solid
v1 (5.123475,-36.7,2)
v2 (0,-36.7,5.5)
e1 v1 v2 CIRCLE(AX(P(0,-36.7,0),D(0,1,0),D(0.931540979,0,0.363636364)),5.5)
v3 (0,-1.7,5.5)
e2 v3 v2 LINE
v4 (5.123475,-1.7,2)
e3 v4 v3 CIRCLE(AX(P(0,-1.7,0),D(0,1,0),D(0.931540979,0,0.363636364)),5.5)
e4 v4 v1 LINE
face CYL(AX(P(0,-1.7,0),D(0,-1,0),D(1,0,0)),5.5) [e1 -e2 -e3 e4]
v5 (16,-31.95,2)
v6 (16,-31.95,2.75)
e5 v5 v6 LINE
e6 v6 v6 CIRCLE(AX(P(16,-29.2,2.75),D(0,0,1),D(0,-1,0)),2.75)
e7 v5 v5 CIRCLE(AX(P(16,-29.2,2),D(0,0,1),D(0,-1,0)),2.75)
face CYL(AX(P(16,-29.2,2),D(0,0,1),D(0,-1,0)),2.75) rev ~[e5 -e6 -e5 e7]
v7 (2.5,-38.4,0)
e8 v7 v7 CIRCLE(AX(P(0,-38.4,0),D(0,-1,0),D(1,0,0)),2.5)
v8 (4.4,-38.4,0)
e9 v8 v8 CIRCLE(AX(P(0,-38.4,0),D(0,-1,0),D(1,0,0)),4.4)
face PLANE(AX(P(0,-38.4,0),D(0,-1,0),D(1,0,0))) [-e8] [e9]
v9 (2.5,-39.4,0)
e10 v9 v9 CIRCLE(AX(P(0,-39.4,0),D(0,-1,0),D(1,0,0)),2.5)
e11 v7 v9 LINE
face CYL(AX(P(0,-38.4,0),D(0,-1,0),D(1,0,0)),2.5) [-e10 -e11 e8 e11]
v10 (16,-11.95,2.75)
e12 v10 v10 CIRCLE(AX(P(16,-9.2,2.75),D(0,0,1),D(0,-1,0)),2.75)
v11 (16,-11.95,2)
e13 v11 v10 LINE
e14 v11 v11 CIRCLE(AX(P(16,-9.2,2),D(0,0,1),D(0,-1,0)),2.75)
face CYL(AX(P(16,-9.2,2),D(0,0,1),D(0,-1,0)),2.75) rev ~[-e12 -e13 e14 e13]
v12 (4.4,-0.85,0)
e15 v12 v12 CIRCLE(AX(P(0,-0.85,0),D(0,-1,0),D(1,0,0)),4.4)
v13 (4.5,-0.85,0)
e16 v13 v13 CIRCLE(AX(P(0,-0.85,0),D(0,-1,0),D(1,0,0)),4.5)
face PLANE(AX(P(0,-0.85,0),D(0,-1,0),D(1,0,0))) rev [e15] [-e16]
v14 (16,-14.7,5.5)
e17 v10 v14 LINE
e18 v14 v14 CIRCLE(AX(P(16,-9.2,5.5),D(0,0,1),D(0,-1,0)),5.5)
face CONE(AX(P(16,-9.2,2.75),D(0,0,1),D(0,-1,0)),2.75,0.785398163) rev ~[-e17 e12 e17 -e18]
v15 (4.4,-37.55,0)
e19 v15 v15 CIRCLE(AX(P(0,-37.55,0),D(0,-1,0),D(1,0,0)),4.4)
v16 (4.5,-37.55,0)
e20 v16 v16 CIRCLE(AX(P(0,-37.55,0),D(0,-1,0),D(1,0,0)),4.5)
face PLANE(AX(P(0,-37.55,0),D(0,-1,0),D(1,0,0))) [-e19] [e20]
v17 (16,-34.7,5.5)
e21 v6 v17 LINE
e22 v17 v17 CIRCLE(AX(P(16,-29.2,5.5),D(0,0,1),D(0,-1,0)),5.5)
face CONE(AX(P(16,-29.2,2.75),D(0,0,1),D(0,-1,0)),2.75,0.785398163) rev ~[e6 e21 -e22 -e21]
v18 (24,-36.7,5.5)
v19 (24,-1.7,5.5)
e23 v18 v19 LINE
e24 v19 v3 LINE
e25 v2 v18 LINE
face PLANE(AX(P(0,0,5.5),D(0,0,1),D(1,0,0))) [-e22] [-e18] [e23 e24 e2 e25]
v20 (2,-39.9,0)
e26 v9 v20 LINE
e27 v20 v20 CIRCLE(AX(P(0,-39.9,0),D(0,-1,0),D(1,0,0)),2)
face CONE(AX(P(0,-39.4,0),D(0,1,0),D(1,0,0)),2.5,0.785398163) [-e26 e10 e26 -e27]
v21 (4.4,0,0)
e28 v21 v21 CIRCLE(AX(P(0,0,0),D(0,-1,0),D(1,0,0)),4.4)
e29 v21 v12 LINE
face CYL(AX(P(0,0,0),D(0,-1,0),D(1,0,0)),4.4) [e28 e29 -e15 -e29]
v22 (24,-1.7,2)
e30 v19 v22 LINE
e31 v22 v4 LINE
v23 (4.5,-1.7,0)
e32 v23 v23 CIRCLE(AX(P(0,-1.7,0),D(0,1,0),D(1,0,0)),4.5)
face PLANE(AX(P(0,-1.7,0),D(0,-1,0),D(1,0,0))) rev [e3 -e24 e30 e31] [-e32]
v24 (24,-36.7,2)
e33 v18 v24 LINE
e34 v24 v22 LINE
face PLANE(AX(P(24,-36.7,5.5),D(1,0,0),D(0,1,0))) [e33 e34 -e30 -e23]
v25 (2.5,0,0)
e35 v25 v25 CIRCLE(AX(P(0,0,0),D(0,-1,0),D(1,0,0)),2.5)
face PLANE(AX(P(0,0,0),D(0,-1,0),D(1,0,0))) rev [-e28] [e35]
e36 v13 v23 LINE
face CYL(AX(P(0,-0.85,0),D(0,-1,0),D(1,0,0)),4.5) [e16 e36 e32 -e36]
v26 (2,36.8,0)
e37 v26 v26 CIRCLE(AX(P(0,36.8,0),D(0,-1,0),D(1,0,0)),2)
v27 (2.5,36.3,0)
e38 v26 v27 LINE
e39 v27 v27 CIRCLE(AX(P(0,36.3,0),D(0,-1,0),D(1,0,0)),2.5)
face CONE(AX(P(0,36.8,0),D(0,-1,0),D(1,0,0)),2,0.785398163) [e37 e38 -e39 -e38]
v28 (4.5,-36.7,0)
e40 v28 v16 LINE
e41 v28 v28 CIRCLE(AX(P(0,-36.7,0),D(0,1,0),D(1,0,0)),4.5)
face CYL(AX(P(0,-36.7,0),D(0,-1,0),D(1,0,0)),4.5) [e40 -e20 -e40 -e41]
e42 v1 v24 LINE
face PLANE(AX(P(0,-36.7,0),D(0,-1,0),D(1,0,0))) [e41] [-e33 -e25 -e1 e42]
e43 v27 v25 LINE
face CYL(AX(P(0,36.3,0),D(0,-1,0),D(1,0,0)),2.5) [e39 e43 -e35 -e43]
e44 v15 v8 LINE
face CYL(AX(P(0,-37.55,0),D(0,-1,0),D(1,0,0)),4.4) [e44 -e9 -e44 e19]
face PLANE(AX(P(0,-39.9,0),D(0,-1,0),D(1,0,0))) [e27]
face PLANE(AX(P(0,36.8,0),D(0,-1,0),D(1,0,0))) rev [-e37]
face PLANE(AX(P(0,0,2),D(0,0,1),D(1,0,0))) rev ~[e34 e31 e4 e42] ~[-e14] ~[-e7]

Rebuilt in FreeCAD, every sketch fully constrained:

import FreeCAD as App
import Part
import Sketcher

V = App.Vector
Q = App.Units.Quantity

doc = App.newDocument("Part")
params = doc.addObject("Spreadsheet::Sheet", "Params")
for row, (alias, value) in enumerate([
    ("sketch1_width", "2 mm"),
    ("sketch1_width2", "1 mm"),
    ("sketch1_height", "35 mm"),
    ("sketch1_width3", "1.9 mm"),
    ("sketch1_width4", "0.1 mm"),
    ("revolution_angle", "360 deg"),
    ("sketch2_width", "24 mm"),
    ("sketch2_height", "35 mm"),
    ("pad1_length", "3.5 mm"),
    ("sketch3_width", "5.5 mm"),
    ("sketch3_height", "3.5 mm"),
    ("sketch3_width2", "2.75 mm"),
    ("groove_angle", "360 deg"),
    ("sketch4_width", "5.5 mm"),
    ("sketch4_height", "3.5 mm"),
    ("sketch4_width2", "2.75 mm"),
    ("groove2_angle", "360 deg"),
], start=1):
    params.set(f"A{row}", alias)
    params.set(f"B{row}", "=" + value)
    params.setAlias(f"B{row}", alias)

body = doc.addObject("PartDesign::Body", "Body")

sketch1 = body.newObject("Sketcher::SketchObject", "Sketch")
sketch1.AttachmentSupport = (doc.getObject("XY_Plane"), [""])
sketch1.MapMode = "FlatFace"
sketch1.addGeometry(Part.LineSegment(V(0, 36.8, 0), V(0, -39.9, 0)), False)
sketch1.addGeometry(Part.LineSegment(V(0, -39.9, 0), V(2, -39.9, 0)), False)
sketch1.addGeometry(Part.LineSegment(V(2, -39.9, 0), V(2.5, -39.4, 0)), False)
sketch1.addGeometry(Part.LineSegment(V(2.5, -39.4, 0), V(2.5, -38.4, 0)), False)
sketch1.addGeometry(Part.LineSegment(V(2.5, -38.4, 0), V(4.4, -38.4, 0)), False)
sketch1.addGeometry(Part.LineSegment(V(4.4, -38.4, 0), V(4.4, -37.55, 0)), False)
sketch1.addGeometry(Part.LineSegment(V(4.4, -37.55, 0), V(4.5, -37.55, 0)), False)
sketch1.addGeometry(Part.LineSegment(V(4.5, -37.55, 0), V(4.5, -36.7, 0)), False)
sketch1.addGeometry(Part.LineSegment(V(4.5, -36.7, 0), V(5.5, -36.7, 0)), False)
sketch1.addGeometry(Part.LineSegment(V(5.5, -36.7, 0), V(5.5, -1.7, 0)), False)
sketch1.addGeometry(Part.LineSegment(V(5.5, -1.7, 0), V(4.5, -1.7, 0)), False)
sketch1.addGeometry(Part.LineSegment(V(4.5, -1.7, 0), V(4.5, -0.85, 0)), False)
sketch1.addGeometry(Part.LineSegment(V(4.5, -0.85, 0), V(4.4, -0.85, 0)), False)
sketch1.addGeometry(Part.LineSegment(V(4.4, -0.85, 0), V(4.4, 0, 0)), False)
sketch1.addGeometry(Part.LineSegment(V(4.4, 0, 0), V(2.5, 0, 0)), False)
sketch1.addGeometry(Part.LineSegment(V(2.5, 0, 0), V(2.5, 36.3, 0)), False)
sketch1.addGeometry(Part.LineSegment(V(2.5, 36.3, 0), V(2, 36.8, 0)), False)
sketch1.addGeometry(Part.LineSegment(V(2, 36.8, 0), V(0, 36.8, 0)), False)
sketch1.addConstraint(Sketcher.Constraint("Coincident", 0, 2, 1, 1))
sketch1.addConstraint(Sketcher.Constraint("Coincident", 1, 2, 2, 1))
sketch1.addConstraint(Sketcher.Constraint("Coincident", 2, 2, 3, 1))
sketch1.addConstraint(Sketcher.Constraint("Coincident", 3, 2, 4, 1))
sketch1.addConstraint(Sketcher.Constraint("Coincident", 4, 2, 5, 1))
sketch1.addConstraint(Sketcher.Constraint("Coincident", 5, 2, 6, 1))
sketch1.addConstraint(Sketcher.Constraint("Coincident", 6, 2, 7, 1))
sketch1.addConstraint(Sketcher.Constraint("Coincident", 7, 2, 8, 1))
sketch1.addConstraint(Sketcher.Constraint("Coincident", 8, 2, 9, 1))
sketch1.addConstraint(Sketcher.Constraint("Coincident", 9, 2, 10, 1))
sketch1.addConstraint(Sketcher.Constraint("Coincident", 10, 2, 11, 1))
sketch1.addConstraint(Sketcher.Constraint("Coincident", 11, 2, 12, 1))
sketch1.addConstraint(Sketcher.Constraint("Coincident", 12, 2, 13, 1))
sketch1.addConstraint(Sketcher.Constraint("Coincident", 13, 2, 14, 1))
sketch1.addConstraint(Sketcher.Constraint("Coincident", 14, 2, 15, 1))
sketch1.addConstraint(Sketcher.Constraint("Coincident", 15, 2, 16, 1))
sketch1.addConstraint(Sketcher.Constraint("Coincident", 16, 2, 17, 1))
sketch1.addConstraint(Sketcher.Constraint("Coincident", 17, 2, 0, 1))
sketch1.addConstraint(Sketcher.Constraint("Vertical", 0))
sketch1.addConstraint(Sketcher.Constraint("Horizontal", 1))
sketch1.addConstraint(Sketcher.Constraint("Vertical", 3))
sketch1.addConstraint(Sketcher.Constraint("Horizontal", 4))
sketch1.addConstraint(Sketcher.Constraint("Vertical", 5))
sketch1.addConstraint(Sketcher.Constraint("Horizontal", 6))
sketch1.addConstraint(Sketcher.Constraint("Vertical", 7))
sketch1.addConstraint(Sketcher.Constraint("Horizontal", 8))
sketch1.addConstraint(Sketcher.Constraint("Vertical", 9))
sketch1.addConstraint(Sketcher.Constraint("Horizontal", 10))
sketch1.addConstraint(Sketcher.Constraint("Vertical", 11))
sketch1.addConstraint(Sketcher.Constraint("Horizontal", 12))
sketch1.addConstraint(Sketcher.Constraint("Vertical", 13))
sketch1.addConstraint(Sketcher.Constraint("Horizontal", 14))
sketch1.addConstraint(Sketcher.Constraint("Vertical", 15))
sketch1.addConstraint(Sketcher.Constraint("Horizontal", 17))
sketch1.addConstraint(Sketcher.Constraint("PointOnObject", 0, 2, -2))
sketch1.addConstraint(Sketcher.Constraint("PointOnObject", 13, 2, -1))
sketch1.addConstraint(Sketcher.Constraint("Perpendicular", 2, 16))
sketch1.addConstraint(Sketcher.Constraint("Vertical", 7, 2, 10, 2))
sketch1.addConstraint(Sketcher.Constraint("Vertical", 5, 2, 12, 2))
sketch1.addConstraint(Sketcher.Constraint("Vertical", 3, 2, 14, 2))
sketch1.addConstraint(Sketcher.Constraint("Vertical", 1, 2, 16, 2))
sketch1.addConstraint(Sketcher.Constraint("Equal", 10, 3))
sketch1.addConstraint(Sketcher.Constraint("Equal", 5, 7))
sketch1.addConstraint(Sketcher.Constraint("Equal", 7, 11))
sketch1.addConstraint(Sketcher.Constraint("Equal", 11, 13))
sketch1.addConstraint(Sketcher.Constraint("Equal", 2, 16))
sketch1.addConstraint(Sketcher.Constraint("DistanceX", 1, 1, 1, 2, Q("2 mm")))
sketch1.addConstraint(Sketcher.Constraint("DistanceX", 8, 1, 8, 2, Q("1 mm")))
sketch1.addConstraint(Sketcher.Constraint("DistanceY", 9, 1, 9, 2, Q("35 mm")))
sketch1.addConstraint(Sketcher.Constraint("DistanceX", 4, 1, 4, 2, Q("1.9 mm")))
sketch1.addConstraint(Sketcher.Constraint("DistanceX", 6, 1, 6, 2, Q("0.1 mm")))
sketch1.addConstraint(Sketcher.Constraint("DistanceY", 0, 2, 0, 1, Q("76.7 mm")))
sketch1.addConstraint(Sketcher.Constraint("DistanceY", 15, 1, 15, 2, Q("36.3 mm")))
sketch1.addConstraint(Sketcher.Constraint("DistanceY", 10, 2, 15, 2, Q("38 mm")))
sketch1.setExpression("Constraints[46]", "Params.sketch1_width")
sketch1.setExpression("Constraints[47]", "Params.sketch1_width2")
sketch1.setExpression("Constraints[48]", "Params.sketch1_height")
sketch1.setExpression("Constraints[49]", "Params.sketch1_width3")
sketch1.setExpression("Constraints[50]", "Params.sketch1_width4")
revolution = body.newObject("PartDesign::Revolution", "Revolution")
revolution.Profile = sketch1
revolution.ReferenceAxis = (sketch1, ["V_Axis"])
revolution.setExpression("Angle", "Params.revolution_angle")

sketch2 = body.newObject("Sketcher::SketchObject", "Sketch001")
sketch2.AttachmentSupport = (doc.getObject("XY_Plane"), [""])
sketch2.MapMode = "FlatFace"
sketch2.AttachmentOffset = App.Placement(V(0, 0, 5.5), App.Rotation())
sketch2.addGeometry(Part.LineSegment(V(24, -2, 0), V(0, -2, 0)), False)
sketch2.addGeometry(Part.LineSegment(V(0, -2, 0), V(0, -37, 0)), False)
sketch2.addGeometry(Part.LineSegment(V(0, -37, 0), V(24, -37, 0)), False)
sketch2.addGeometry(Part.LineSegment(V(24, -37, 0), V(24, -2, 0)), False)
sketch2.addConstraint(Sketcher.Constraint("Coincident", 0, 2, 1, 1))
sketch2.addConstraint(Sketcher.Constraint("Coincident", 1, 2, 2, 1))
sketch2.addConstraint(Sketcher.Constraint("Coincident", 2, 2, 3, 1))
sketch2.addConstraint(Sketcher.Constraint("Coincident", 3, 2, 0, 1))
sketch2.addConstraint(Sketcher.Constraint("Horizontal", 0))
sketch2.addConstraint(Sketcher.Constraint("Vertical", 1))
sketch2.addConstraint(Sketcher.Constraint("Horizontal", 2))
sketch2.addConstraint(Sketcher.Constraint("Vertical", 3))
sketch2.addConstraint(Sketcher.Constraint("PointOnObject", 0, 2, -2))
sketch2.addConstraint(Sketcher.Constraint("DistanceX", 0, 2, 0, 1, Q("24 mm")))
sketch2.addConstraint(Sketcher.Constraint("DistanceY", 1, 2, 1, 1, Q("35 mm")))
sketch2.addConstraint(Sketcher.Constraint("DistanceY", 0, 2, -1, 1, Q("1.7 mm")))
sketch2.setExpression("Constraints[9]", "Params.sketch2_width")
sketch2.setExpression("Constraints[10]", "Params.sketch2_height")
pad1 = body.newObject("PartDesign::Pad", "Pad")
pad1.Profile = sketch2
pad1.setExpression("Length", "Params.pad1_length")
pad1.Reversed = True

sketch3 = body.newObject("Sketcher::SketchObject", "Sketch002")
sketch3.AttachmentSupport = (doc.getObject("YZ_Plane"), [""])
sketch3.MapMode = "FlatFace"
sketch3.AttachmentOffset = App.Placement(V(0, 0, 16), App.Rotation())
sketch3.addGeometry(Part.LineSegment(V(-9.2, 2, 0), V(-9.2, 5.5, 0)), False)
sketch3.addGeometry(Part.LineSegment(V(-9.2, 5.5, 0), V(-14.7, 5.5, 0)), False)
sketch3.addGeometry(Part.LineSegment(V(-14.7, 5.5, 0), V(-11.9, 2.8, 0)), False)
sketch3.addGeometry(Part.LineSegment(V(-11.9, 2.8, 0), V(-11.9, 2, 0)), False)
sketch3.addGeometry(Part.LineSegment(V(-11.9, 2, 0), V(-9.2, 2, 0)), False)
sketch3.addGeometry(Part.LineSegment(V(-9.2, 2, 0), V(-9.2, 5.5, 0)), True)
sketch3.addConstraint(Sketcher.Constraint("Coincident", 0, 2, 1, 1))
sketch3.addConstraint(Sketcher.Constraint("Coincident", 1, 2, 2, 1))
sketch3.addConstraint(Sketcher.Constraint("Coincident", 2, 2, 3, 1))
sketch3.addConstraint(Sketcher.Constraint("Coincident", 3, 2, 4, 1))
sketch3.addConstraint(Sketcher.Constraint("Coincident", 4, 2, 0, 1))
sketch3.addConstraint(Sketcher.Constraint("Vertical", 0))
sketch3.addConstraint(Sketcher.Constraint("Horizontal", 1))
sketch3.addConstraint(Sketcher.Constraint("Vertical", 3))
sketch3.addConstraint(Sketcher.Constraint("Horizontal", 4))
sketch3.addConstraint(Sketcher.Constraint("Vertical", 5))
sketch3.addConstraint(Sketcher.Constraint("Coincident", 5, 1, 4, 2))
sketch3.addConstraint(Sketcher.Constraint("Horizontal", 1, 2, 5, 2))
sketch3.addConstraint(Sketcher.Constraint("Angle", 2, Q("-45 deg")))
sketch3.addConstraint(Sketcher.Constraint("DistanceX", 1, 2, 1, 1, Q("5.5 mm")))
sketch3.addConstraint(Sketcher.Constraint("DistanceY", 0, 1, 0, 2, Q("3.5 mm")))
sketch3.addConstraint(Sketcher.Constraint("DistanceY", -1, 1, 3, 2, Q("2 mm")))
sketch3.addConstraint(Sketcher.Constraint("DistanceX", 4, 1, 4, 2, Q("2.75 mm")))
sketch3.addConstraint(Sketcher.Constraint("DistanceX", 0, 2, -1, 1, Q("9.2 mm")))
sketch3.setExpression("Constraints[13]", "Params.sketch3_width")
sketch3.setExpression("Constraints[14]", "Params.sketch3_height")
sketch3.setExpression("Constraints[16]", "Params.sketch3_width2")
groove = body.newObject("PartDesign::Groove", "Groove")
groove.Profile = sketch3
groove.ReferenceAxis = (sketch3, ["Axis0"])
groove.setExpression("Angle", "Params.groove_angle")

sketch4 = body.newObject("Sketcher::SketchObject", "Sketch003")
sketch4.AttachmentSupport = (doc.getObject("YZ_Plane"), [""])
sketch4.MapMode = "FlatFace"
sketch4.AttachmentOffset = App.Placement(V(0, 0, 16), App.Rotation())
sketch4.addGeometry(Part.LineSegment(V(-29.2, 2, 0), V(-29.2, 5.5, 0)), False)
sketch4.addGeometry(Part.LineSegment(V(-29.2, 5.5, 0), V(-34.7, 5.5, 0)), False)
sketch4.addGeometry(Part.LineSegment(V(-34.7, 5.5, 0), V(-31.9, 2.8, 0)), False)
sketch4.addGeometry(Part.LineSegment(V(-31.9, 2.8, 0), V(-31.9, 2, 0)), False)
sketch4.addGeometry(Part.LineSegment(V(-31.9, 2, 0), V(-29.2, 2, 0)), False)
sketch4.addGeometry(Part.LineSegment(V(-29.2, 2, 0), V(-29.2, 5.5, 0)), True)
sketch4.addConstraint(Sketcher.Constraint("Coincident", 0, 2, 1, 1))
sketch4.addConstraint(Sketcher.Constraint("Coincident", 1, 2, 2, 1))
sketch4.addConstraint(Sketcher.Constraint("Coincident", 2, 2, 3, 1))
sketch4.addConstraint(Sketcher.Constraint("Coincident", 3, 2, 4, 1))
sketch4.addConstraint(Sketcher.Constraint("Coincident", 4, 2, 0, 1))
sketch4.addConstraint(Sketcher.Constraint("Vertical", 0))
sketch4.addConstraint(Sketcher.Constraint("Horizontal", 1))
sketch4.addConstraint(Sketcher.Constraint("Vertical", 3))
sketch4.addConstraint(Sketcher.Constraint("Horizontal", 4))
sketch4.addConstraint(Sketcher.Constraint("Vertical", 5))
sketch4.addConstraint(Sketcher.Constraint("Coincident", 5, 1, 4, 2))
sketch4.addConstraint(Sketcher.Constraint("Horizontal", 1, 2, 5, 2))
sketch4.addConstraint(Sketcher.Constraint("Angle", 2, Q("-45 deg")))
sketch4.addConstraint(Sketcher.Constraint("DistanceX", 1, 2, 1, 1, Q("5.5 mm")))
sketch4.addConstraint(Sketcher.Constraint("DistanceY", 0, 1, 0, 2, Q("3.5 mm")))
sketch4.addConstraint(Sketcher.Constraint("DistanceY", -1, 1, 3, 2, Q("2 mm")))
sketch4.addConstraint(Sketcher.Constraint("DistanceX", 4, 1, 4, 2, Q("2.75 mm")))
sketch4.addConstraint(Sketcher.Constraint("DistanceX", 0, 2, -1, 1, Q("29.2 mm")))
sketch4.setExpression("Constraints[13]", "Params.sketch4_width")
sketch4.setExpression("Constraints[14]", "Params.sketch4_height")
sketch4.setExpression("Constraints[16]", "Params.sketch4_width2")
groove2 = body.newObject("PartDesign::Groove", "Groove001")
groove2.Profile = sketch4
groove2.ReferenceAxis = (sketch4, ["Axis0"])
groove2.setExpression("Angle", "Params.groove2_angle")

doc.recompute()
